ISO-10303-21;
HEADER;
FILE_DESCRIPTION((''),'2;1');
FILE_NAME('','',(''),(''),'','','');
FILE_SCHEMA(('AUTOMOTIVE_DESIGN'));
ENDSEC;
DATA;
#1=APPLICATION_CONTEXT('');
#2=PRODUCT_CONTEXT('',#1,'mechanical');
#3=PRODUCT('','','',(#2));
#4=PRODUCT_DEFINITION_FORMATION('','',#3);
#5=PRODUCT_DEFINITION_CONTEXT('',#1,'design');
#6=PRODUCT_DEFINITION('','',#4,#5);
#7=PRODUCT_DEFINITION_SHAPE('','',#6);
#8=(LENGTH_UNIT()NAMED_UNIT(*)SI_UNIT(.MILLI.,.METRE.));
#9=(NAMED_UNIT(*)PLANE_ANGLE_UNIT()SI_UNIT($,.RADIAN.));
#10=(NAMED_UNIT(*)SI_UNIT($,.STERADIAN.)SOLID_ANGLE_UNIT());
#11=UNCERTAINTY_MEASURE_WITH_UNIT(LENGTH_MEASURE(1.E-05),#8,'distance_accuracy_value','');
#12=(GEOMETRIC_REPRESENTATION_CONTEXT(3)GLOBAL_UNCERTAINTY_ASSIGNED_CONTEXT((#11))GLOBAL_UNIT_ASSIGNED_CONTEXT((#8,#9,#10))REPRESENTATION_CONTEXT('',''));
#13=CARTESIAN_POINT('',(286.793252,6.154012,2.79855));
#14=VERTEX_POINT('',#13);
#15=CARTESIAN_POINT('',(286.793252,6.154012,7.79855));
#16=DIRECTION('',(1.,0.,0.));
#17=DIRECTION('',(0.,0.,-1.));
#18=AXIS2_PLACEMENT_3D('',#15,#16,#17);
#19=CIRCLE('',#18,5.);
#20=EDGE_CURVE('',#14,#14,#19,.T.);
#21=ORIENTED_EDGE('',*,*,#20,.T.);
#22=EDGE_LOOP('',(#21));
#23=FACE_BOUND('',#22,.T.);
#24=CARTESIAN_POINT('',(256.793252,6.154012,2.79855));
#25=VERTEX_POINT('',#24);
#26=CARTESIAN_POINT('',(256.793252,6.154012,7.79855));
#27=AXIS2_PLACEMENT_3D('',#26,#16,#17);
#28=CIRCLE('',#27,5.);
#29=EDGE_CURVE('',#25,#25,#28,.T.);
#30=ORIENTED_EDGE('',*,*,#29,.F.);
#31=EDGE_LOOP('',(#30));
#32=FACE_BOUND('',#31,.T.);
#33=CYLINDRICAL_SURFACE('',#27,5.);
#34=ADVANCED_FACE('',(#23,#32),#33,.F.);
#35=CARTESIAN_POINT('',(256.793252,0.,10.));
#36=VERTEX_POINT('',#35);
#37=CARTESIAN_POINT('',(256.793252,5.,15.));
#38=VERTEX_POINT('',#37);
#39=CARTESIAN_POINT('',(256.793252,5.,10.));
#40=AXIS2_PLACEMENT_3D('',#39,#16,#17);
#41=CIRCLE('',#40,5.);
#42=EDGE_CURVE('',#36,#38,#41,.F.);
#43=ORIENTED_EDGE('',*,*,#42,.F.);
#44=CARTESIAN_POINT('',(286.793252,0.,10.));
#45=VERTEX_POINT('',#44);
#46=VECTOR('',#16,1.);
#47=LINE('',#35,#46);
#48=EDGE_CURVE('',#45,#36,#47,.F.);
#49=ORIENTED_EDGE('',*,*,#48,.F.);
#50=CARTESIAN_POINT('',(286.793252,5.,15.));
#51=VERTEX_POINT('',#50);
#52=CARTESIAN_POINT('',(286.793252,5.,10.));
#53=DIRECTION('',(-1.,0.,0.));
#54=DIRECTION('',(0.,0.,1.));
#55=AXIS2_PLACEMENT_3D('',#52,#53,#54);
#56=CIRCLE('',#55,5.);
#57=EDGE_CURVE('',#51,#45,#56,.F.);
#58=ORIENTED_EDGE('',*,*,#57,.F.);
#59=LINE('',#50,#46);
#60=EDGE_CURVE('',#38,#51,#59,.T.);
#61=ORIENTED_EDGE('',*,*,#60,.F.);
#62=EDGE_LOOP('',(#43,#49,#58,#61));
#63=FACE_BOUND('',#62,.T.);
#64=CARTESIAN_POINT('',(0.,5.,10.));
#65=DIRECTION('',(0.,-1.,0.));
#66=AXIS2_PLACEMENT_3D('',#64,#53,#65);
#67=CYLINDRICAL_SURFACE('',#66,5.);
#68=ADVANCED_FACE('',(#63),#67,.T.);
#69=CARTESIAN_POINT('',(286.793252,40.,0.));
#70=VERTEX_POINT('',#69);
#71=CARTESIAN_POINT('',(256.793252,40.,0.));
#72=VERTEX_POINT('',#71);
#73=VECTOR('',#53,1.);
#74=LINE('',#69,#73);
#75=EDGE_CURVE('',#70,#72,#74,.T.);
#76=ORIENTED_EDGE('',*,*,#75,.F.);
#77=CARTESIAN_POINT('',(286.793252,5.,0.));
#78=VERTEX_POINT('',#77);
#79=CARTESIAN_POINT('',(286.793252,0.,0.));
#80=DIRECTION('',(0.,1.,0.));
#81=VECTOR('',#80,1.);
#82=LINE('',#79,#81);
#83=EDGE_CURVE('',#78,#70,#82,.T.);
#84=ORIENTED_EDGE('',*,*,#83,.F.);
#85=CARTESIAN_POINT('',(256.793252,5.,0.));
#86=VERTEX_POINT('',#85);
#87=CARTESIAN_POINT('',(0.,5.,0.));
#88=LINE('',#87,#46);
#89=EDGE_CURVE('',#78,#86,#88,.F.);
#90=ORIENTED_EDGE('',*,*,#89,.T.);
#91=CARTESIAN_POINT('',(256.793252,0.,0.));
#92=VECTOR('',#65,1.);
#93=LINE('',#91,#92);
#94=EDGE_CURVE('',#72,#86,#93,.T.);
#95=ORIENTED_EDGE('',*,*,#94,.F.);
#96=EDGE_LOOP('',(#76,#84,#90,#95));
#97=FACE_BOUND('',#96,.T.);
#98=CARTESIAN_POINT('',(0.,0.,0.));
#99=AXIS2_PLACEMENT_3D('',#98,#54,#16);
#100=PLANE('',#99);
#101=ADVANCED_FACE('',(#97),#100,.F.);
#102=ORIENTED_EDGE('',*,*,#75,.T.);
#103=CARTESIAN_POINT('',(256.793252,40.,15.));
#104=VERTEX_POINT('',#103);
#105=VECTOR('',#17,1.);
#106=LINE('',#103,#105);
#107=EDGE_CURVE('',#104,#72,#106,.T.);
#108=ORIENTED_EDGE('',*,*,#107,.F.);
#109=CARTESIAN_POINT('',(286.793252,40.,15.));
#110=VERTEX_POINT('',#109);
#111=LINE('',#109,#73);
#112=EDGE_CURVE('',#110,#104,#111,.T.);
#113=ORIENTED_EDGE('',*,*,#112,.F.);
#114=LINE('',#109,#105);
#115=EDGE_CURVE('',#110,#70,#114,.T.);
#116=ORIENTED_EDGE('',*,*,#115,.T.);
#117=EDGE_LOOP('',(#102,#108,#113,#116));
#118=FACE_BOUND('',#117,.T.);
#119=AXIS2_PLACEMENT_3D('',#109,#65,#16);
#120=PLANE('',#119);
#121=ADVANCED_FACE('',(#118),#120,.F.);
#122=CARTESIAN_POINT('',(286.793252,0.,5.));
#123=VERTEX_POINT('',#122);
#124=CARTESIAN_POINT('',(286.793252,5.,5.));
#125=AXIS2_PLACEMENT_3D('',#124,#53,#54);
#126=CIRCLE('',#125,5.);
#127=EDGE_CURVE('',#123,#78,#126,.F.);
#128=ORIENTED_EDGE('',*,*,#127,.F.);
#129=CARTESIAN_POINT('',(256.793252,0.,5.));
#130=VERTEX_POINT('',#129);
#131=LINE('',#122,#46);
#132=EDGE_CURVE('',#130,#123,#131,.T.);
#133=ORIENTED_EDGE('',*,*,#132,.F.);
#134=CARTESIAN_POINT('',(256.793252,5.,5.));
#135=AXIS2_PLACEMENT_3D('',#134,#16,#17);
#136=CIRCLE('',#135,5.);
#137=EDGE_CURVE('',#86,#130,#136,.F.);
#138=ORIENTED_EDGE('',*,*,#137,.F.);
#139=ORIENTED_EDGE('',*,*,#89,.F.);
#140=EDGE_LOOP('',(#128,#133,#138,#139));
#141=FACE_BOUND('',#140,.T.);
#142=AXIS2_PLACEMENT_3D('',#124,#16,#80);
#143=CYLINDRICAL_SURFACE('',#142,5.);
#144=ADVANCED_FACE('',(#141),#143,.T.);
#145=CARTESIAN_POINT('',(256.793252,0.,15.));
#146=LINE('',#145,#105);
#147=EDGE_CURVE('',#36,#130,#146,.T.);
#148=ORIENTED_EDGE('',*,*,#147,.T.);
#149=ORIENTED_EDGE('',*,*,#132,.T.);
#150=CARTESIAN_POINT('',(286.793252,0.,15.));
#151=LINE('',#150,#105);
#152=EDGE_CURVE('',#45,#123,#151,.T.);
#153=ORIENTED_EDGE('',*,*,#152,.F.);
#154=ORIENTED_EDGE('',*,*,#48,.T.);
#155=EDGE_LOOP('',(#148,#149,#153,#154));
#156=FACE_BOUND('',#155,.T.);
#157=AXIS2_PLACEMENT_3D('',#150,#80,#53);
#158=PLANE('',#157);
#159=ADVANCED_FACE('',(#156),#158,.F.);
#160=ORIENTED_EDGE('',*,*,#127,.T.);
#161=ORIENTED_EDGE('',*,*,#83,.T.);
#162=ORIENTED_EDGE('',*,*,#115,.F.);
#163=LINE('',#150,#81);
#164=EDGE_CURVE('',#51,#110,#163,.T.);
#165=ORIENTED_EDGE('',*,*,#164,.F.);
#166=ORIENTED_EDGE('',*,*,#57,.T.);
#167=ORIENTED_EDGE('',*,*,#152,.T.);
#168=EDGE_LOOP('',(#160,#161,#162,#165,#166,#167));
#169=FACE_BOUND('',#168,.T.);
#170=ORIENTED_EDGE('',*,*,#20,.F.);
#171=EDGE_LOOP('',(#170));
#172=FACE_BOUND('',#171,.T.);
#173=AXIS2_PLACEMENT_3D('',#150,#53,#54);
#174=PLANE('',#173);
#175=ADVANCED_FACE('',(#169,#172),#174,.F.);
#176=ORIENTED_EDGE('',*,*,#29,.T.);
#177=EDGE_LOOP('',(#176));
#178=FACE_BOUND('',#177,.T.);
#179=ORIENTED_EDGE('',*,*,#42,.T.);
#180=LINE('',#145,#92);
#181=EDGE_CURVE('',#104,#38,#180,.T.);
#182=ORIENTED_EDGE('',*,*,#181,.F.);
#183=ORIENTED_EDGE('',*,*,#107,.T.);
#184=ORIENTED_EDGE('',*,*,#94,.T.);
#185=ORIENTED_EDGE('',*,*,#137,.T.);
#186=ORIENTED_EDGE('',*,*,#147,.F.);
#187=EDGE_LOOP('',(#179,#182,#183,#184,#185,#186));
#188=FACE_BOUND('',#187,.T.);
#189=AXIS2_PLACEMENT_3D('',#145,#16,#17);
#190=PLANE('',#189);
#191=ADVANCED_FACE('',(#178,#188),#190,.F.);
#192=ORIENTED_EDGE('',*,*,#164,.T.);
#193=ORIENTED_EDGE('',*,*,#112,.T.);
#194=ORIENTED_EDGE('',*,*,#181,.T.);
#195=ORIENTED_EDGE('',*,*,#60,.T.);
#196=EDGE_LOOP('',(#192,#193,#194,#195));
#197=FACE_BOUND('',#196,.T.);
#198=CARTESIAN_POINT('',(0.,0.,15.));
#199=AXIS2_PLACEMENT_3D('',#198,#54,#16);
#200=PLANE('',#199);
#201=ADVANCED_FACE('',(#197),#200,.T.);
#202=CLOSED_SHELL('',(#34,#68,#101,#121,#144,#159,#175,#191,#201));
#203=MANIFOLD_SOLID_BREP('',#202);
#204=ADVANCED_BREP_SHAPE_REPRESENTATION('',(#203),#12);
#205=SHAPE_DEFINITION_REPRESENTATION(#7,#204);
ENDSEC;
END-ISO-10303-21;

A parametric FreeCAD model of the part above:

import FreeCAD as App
import Part
import Sketcher
Q = App.Units.Quantity


def edges_at(feature, points):
    """Names of the edges that pass closest to the given points."""
    edges = feature.Shape.Edges
    near = lambda p: min(range(len(edges)), key=lambda i: edges[i].distToShape(Part.Vertex(*p))[0])
    return sorted({f"Edge{near(p) + 1}" for p in points})


def add_polygon(sketch, points):
    """Adds a closed chain of lines whose ends are joined by coincident constraints."""
    first, n = sketch.GeometryCount, len(points)
    for a, b in zip(points, points[1:] + points[:1]):
        sketch.addGeometry(Part.LineSegment(App.Vector(*a, 0), App.Vector(*b, 0)), False)
    for i in range(n):
        sketch.addConstraint(Sketcher.Constraint("Coincident", first + i, 2, first + (i + 1) % n, 1))

doc = App.newDocument("Part")
params = doc.addObject("Spreadsheet::Sheet", "Params")
for row, (alias, value) in enumerate([
    ("sketch1_width", "30 mm"),
    ("sketch1_height", "40 mm"),
    ("pad1_length", "15 mm"),
    ("fillet_radius", "5 mm"),
    ("fillet2_radius", "5 mm"),
    ("sketch2_diameter", "10 mm"),
], start=1):
    params.set(f"A{row}", alias)
    params.set(f"B{row}", "=" + value)
    params.setAlias(f"B{row}", alias)

body = doc.addObject("PartDesign::Body", "Body")

# Sketch on XY plane
sketch1 = body.newObject("Sketcher::SketchObject", "Sketch")
sketch1.AttachmentSupport = (doc.getObject("XY_Plane"), [""])
sketch1.MapMode = "FlatFace"
add_polygon(sketch1, [(257, 40), (257, 0), (287, 0), (287, 40)])  # lines 0-3
sketch1.addConstraint([
    Sketcher.Constraint("Vertical", 0),
    Sketcher.Constraint("Horizontal", 1),
    Sketcher.Constraint("Vertical", 2),
    Sketcher.Constraint("Horizontal", 3),
    Sketcher.Constraint("PointOnObject", 0, 2, -1),
    Sketcher.Constraint("DistanceX", 1, 1, 1, 2, Q("30 mm")),
    Sketcher.Constraint("DistanceY", 0, 2, 0, 1, Q("40 mm")),
    Sketcher.Constraint("DistanceX", -1, 1, 0, 2, Q("256.793252 mm")),
])
sketch1.setExpression("Constraints[9]", "Params.sketch1_width")
sketch1.setExpression("Constraints[10]", "Params.sketch1_height")
pad1 = body.newObject("PartDesign::Pad", "Pad")
pad1.Profile = sketch1
pad1.setExpression("Length", "Params.pad1_length")
doc.recompute()

fillet = body.newObject("PartDesign::Fillet", "Fillet")
fillet.Base = (pad1, edges_at(pad1, [(271.793, 0, 15)]))
fillet.setExpression("Radius", "Params.fillet_radius")
doc.recompute()

fillet2 = body.newObject("PartDesign::Fillet", "Fillet001")
fillet2.Base = (fillet, edges_at(fillet, [(271.793, 0, 0)]))
fillet2.setExpression("Radius", "Params.fillet2_radius")

# Sketch on YZ plane
sketch2 = body.newObject("Sketcher::SketchObject", "Sketch001")
sketch2.AttachmentSupport = (doc.getObject("YZ_Plane"), [""])
sketch2.MapMode = "FlatFace"
sketch2.AttachmentOffset = App.Placement(App.Vector(0, 0, 286.793252), App.Rotation())
sketch2.addGeometry(Part.Circle(App.Vector(6, 8, 0), App.Vector(0, 0, 1), 5), False)
sketch2.addConstraint([
    Sketcher.Constraint("Diameter", 0, Q("10 mm")),
    Sketcher.Constraint("DistanceX", -1, 1, 0, 3, Q("6.154012 mm")),
    Sketcher.Constraint("DistanceY", -1, 1, 0, 3, Q("7.79855 mm")),
])
sketch2.setExpression("Constraints[0]", "Params.sketch2_diameter")
pocket1 = body.newObject("PartDesign::Pocket", "Pocket")
pocket1.Profile = sketch2
pocket1.Type = "ThroughAll"

doc.recompute()
